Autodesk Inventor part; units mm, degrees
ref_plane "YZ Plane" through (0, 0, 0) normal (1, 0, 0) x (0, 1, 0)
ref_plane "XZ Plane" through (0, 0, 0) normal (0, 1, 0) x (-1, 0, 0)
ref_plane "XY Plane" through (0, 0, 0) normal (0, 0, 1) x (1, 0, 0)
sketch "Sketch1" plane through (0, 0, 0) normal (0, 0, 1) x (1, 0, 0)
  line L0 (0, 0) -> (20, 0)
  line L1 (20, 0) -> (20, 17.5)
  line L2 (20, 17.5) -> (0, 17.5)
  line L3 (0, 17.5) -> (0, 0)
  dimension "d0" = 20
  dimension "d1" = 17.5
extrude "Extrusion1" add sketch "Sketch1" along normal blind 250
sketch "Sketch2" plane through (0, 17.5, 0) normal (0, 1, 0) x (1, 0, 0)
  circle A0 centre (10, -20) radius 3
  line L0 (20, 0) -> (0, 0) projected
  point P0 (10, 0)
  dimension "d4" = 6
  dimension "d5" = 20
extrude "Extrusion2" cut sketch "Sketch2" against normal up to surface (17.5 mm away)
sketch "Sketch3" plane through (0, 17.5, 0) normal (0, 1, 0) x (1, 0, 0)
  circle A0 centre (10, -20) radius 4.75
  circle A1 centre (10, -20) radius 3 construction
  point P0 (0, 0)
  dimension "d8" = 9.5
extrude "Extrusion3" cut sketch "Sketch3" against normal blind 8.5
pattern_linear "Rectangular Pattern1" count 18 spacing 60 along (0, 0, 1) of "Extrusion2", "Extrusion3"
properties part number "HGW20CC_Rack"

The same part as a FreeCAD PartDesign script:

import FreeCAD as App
import Part
import Sketcher
from FreeCAD import Vector


def add_polygon(sketch, points):
    """Adds a closed chain of lines whose ends are joined by coincident constraints."""
    first, n = sketch.GeometryCount, len(points)
    for a, b in zip(points, points[1:] + points[:1]):
        sketch.addGeometry(Part.LineSegment(App.Vector(*a, 0), App.Vector(*b, 0)), False)
    for i in range(n):
        sketch.addConstraint(Sketcher.Constraint("Coincident", first + i, 2, first + (i + 1) % n, 1))

doc = App.newDocument("Part")
body = doc.addObject("PartDesign::Body", "Body")

# Sketch on XY plane
sketch1 = body.newObject("Sketcher::SketchObject", "Sketch")
sketch1.AttachmentSupport = (doc.getObject("XY_Plane"), [""])
sketch1.MapMode = "FlatFace"
add_polygon(sketch1, [(0, 17.5), (0, 0), (20, 0), (20, 17.5)])  # lines 0-3
sketch1.addConstraint(Sketcher.Constraint("Vertical", 0))
sketch1.addConstraint(Sketcher.Constraint("Horizontal", 1))
sketch1.addConstraint(Sketcher.Constraint("Vertical", 2))
sketch1.addConstraint(Sketcher.Constraint("Horizontal", 3))
sketch1.addConstraint(Sketcher.Constraint("Coincident", 0, 2, -1, 1))
sketch1.addConstraint(Sketcher.Constraint("DistanceX", 1, 1, 1, 2, 20.0))
sketch1.addConstraint(Sketcher.Constraint("DistanceY", 0, 2, 0, 1, 17.5))
pad1 = body.newObject("PartDesign::Pad", "Pad")
pad1.Profile = sketch1
pad1.Length = 250

# Sketch on XZ plane
sketch2 = body.newObject("Sketcher::SketchObject", "Sketch001")
sketch2.AttachmentSupport = (doc.getObject("XZ_Plane"), [""])
sketch2.MapMode = "FlatFace"
sketch2.AttachmentOffset = App.Placement(Vector(0, 0, -17.5), App.Rotation())
sketch2.addGeometry(Part.Circle(Vector(10, 20, 0), Vector(0, 0, 1), 3), False)
sketch2.addConstraint(Sketcher.Constraint("Diameter", 0, 6.0))
sketch2.addConstraint(Sketcher.Constraint("DistanceY", -1, 1, 0, 3, 20.0))
sketch2.addConstraint(Sketcher.Constraint("DistanceX", -1, 1, 0, 3, 10.0))
pocket1 = body.newObject("PartDesign::Pocket", "Pocket")
pocket1.Profile = sketch2
pocket1.Length = 17.5
pocket1.Reversed = True

# Sketch on XZ plane
sketch3 = body.newObject("Sketcher::SketchObject", "Sketch002")
sketch3.AttachmentSupport = (doc.getObject("XZ_Plane"), [""])
sketch3.MapMode = "FlatFace"
sketch3.AttachmentOffset = App.Placement(Vector(0, 0, -17.5), App.Rotation())
sketch3.addGeometry(Part.Circle(Vector(10, 20, 0), Vector(0, 0, 1), 4.75), False)
sketch3.addConstraint(Sketcher.Constraint("Diameter", 0, 9.5))
sketch3.addConstraint(Sketcher.Constraint("DistanceX", -1, 1, 0, 3, 10.0))
sketch3.addConstraint(Sketcher.Constraint("DistanceY", -1, 1, 0, 3, 20.0))
pocket2 = body.newObject("PartDesign::Pocket", "Pocket001")
pocket2.Profile = sketch3
pocket2.Length = 8.5
pocket2.Reversed = True
doc.recompute()

linearpattern = body.newObject("PartDesign::LinearPattern", "LinearPattern")
linearpattern.Originals = [pocket1, pocket2]
linearpattern.Direction = (doc.getObject("Z_Axis"), [""])
linearpattern.Mode = "offset"
linearpattern.Offset = 60
linearpattern.Occurrences = 18
body.Tip = linearpattern

doc.recompute()
